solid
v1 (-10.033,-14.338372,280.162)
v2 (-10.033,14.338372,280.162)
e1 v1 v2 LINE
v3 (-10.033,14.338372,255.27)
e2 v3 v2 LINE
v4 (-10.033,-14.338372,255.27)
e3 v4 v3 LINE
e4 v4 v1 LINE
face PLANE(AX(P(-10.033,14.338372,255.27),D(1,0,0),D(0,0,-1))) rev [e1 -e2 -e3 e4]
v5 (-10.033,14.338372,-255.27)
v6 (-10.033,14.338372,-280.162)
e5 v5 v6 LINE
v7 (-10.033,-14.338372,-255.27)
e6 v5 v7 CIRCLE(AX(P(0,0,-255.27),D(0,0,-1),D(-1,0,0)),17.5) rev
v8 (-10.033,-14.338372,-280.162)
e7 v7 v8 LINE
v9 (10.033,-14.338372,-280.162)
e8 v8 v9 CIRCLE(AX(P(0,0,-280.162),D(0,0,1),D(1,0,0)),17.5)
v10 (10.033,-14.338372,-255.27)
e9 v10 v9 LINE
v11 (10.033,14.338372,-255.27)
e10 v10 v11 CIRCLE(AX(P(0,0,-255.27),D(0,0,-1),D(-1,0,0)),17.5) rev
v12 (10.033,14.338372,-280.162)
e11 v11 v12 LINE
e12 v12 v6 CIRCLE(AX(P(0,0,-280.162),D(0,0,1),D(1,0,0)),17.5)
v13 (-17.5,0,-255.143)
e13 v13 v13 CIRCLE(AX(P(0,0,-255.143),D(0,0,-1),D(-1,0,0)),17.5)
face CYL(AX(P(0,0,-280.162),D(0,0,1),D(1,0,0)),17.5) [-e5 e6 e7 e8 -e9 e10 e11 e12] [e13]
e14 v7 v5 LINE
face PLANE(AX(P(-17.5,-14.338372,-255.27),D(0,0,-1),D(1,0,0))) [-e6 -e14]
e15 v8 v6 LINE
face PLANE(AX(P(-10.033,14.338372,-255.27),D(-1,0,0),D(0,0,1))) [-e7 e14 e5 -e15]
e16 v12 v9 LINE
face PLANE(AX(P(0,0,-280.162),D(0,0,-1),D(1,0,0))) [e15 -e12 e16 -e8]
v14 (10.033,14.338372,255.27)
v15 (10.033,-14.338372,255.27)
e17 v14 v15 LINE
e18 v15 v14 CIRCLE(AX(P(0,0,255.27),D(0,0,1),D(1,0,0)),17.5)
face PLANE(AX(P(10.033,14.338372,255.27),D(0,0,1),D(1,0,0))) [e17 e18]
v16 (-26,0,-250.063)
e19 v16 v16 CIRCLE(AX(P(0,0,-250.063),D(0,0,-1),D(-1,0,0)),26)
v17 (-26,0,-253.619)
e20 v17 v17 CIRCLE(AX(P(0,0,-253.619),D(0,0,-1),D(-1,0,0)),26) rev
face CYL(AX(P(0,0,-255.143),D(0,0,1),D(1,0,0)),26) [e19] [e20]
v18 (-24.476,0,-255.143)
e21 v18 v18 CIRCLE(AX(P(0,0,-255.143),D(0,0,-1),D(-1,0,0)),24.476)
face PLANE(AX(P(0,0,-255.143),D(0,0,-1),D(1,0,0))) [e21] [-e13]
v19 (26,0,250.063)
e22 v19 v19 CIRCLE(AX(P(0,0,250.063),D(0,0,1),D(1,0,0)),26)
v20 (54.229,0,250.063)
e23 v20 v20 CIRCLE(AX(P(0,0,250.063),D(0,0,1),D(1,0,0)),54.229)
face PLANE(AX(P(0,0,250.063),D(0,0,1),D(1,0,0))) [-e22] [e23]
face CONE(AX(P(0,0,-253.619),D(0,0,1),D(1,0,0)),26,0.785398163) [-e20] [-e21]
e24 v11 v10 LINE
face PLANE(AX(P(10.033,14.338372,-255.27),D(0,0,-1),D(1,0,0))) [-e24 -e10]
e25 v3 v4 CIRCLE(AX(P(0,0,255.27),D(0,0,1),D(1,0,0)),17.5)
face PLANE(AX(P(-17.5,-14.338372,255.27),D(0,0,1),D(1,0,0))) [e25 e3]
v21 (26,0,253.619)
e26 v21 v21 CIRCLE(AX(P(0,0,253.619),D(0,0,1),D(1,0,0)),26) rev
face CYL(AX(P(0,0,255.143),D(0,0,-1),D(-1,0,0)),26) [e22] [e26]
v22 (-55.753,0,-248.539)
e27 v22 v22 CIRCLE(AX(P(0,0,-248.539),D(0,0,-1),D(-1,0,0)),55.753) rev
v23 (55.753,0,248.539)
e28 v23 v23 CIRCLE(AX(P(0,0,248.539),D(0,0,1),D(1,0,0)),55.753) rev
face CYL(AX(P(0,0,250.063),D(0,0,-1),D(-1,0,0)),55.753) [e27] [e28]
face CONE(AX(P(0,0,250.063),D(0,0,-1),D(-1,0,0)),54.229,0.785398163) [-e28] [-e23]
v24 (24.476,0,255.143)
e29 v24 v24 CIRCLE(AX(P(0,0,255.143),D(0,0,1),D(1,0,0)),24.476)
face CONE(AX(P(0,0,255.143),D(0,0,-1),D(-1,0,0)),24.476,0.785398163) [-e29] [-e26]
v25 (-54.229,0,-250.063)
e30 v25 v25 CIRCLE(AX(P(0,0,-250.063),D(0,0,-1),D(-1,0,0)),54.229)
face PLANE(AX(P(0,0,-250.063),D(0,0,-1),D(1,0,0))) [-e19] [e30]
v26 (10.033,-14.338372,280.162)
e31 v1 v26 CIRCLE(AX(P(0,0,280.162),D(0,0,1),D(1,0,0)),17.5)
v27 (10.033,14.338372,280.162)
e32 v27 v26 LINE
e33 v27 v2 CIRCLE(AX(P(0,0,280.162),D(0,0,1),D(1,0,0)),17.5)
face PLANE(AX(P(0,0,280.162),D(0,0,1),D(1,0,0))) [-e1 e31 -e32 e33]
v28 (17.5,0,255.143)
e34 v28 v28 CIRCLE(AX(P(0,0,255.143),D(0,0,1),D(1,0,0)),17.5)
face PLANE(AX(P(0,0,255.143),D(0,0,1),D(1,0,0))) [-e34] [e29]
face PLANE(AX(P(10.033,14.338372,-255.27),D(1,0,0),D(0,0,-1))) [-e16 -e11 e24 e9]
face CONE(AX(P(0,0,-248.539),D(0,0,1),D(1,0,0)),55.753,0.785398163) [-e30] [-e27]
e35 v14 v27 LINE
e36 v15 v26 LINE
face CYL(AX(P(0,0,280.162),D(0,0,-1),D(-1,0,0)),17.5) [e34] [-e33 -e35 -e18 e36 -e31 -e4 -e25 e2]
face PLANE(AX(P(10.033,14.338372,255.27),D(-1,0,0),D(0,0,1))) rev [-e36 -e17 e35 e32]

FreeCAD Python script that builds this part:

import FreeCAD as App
import Part
import Sketcher
Q = App.Units.Quantity


def edges_at(feature, points):
    """Names of the edges that pass closest to the given points."""
    edges = feature.Shape.Edges
    near = lambda p: min(range(len(edges)), key=lambda i: edges[i].distToShape(Part.Vertex(*p))[0])
    return sorted({f"Edge{near(p) + 1}" for p in points})

doc = App.newDocument("Part")
body = doc.addObject("PartDesign::Body", "Body")

sketch1 = body.newObject("Sketcher::SketchObject", "Sketch")
sketch1.AttachmentSupport = (doc.getObject("XY_Plane"), [""])
sketch1.MapMode = "FlatFace"
sketch1.addGeometry(Part.Circle(App.Vector(0, 0, 0), App.Vector(0, 0, 1), 56), False)
sketch1.addConstraint(Sketcher.Constraint("Coincident", 0, 3, -1, 1))
sketch1.addConstraint(Sketcher.Constraint("Diameter", 0, Q("4.39 in")))
pad1 = body.newObject("PartDesign::Pad", "Pad")
pad1.Profile = sketch1
pad1.Length = Q("9.845 in")

sketch2 = body.newObject("Sketcher::SketchObject", "Sketch001")
sketch2.AttachmentSupport = (doc.getObject("XY_Plane"), [""])
sketch2.MapMode = "FlatFace"
sketch2.AttachmentOffset = App.Placement(App.Vector(0, 0, 9.845 * 25.4), App.Rotation())
sketch2.addGeometry(Part.Circle(App.Vector(0, 0, 0), App.Vector(0, 0, 1), 26), False)
sketch2.addConstraint(Sketcher.Constraint("Coincident", 0, 3, -1, 1))
sketch2.addConstraint(Sketcher.Constraint("Diameter", 0, Q("52 mm")))
pad2 = body.newObject("PartDesign::Pad", "Pad001")
pad2.Profile = sketch2
pad2.Length = Q("0.2 in")

sketch3 = body.newObject("Sketcher::SketchObject", "Sketch002")
sketch3.AttachmentSupport = (doc.getObject("XY_Plane"), [""])
sketch3.MapMode = "FlatFace"
sketch3.AttachmentOffset = App.Placement(App.Vector(0, 0, 10.045 * 25.4), App.Rotation())
sketch3.addGeometry(Part.Circle(App.Vector(0, 0, 0), App.Vector(0, 0, 1), 18), False)
sketch3.addConstraint(Sketcher.Constraint("Coincident", 0, 3, -1, 1))
sketch3.addConstraint(Sketcher.Constraint("Diameter", 0, Q("35 mm")))
pad3 = body.newObject("PartDesign::Pad", "Pad002")
pad3.Profile = sketch3
pad3.Length = Q("0.985 in")

sketch4 = body.newObject("Sketcher::SketchObject", "Sketch003")
sketch4.AttachmentSupport = (doc.getObject("XY_Plane"), [""])
sketch4.MapMode = "FlatFace"
sketch4.AttachmentOffset = App.Placement(App.Vector(0, 0, 11.03 * 25.4), App.Rotation())
sketch4.addGeometry(Part.LineSegment(App.Vector(10, 14, 0), App.Vector(10, -14, 0)), False)
sketch4.addGeometry(Part.LineSegment(App.Vector(10, -14, 0), App.Vector(18, -14, 0)), False)
sketch4.addGeometry(Part.LineSegment(App.Vector(18, -14, 0), App.Vector(18, 14, 0)), False)
sketch4.addGeometry(Part.LineSegment(App.Vector(18, 14, 0), App.Vector(10, 14, 0)), False)
sketch4.addGeometry(Part.LineSegment(App.Vector(-18, 14, 0), App.Vector(-18, -14, 0)), False)
sketch4.addGeometry(Part.LineSegment(App.Vector(-18, -14, 0), App.Vector(-10, -14, 0)), False)
sketch4.addGeometry(Part.LineSegment(App.Vector(-10, -14, 0), App.Vector(-10, 14, 0)), False)
sketch4.addGeometry(Part.LineSegment(App.Vector(-10, 14, 0), App.Vector(-18, 14, 0)), False)
sketch4.addConstraint(Sketcher.Constraint("Coincident", 0, 2, 1, 1))
sketch4.addConstraint(Sketcher.Constraint("Coincident", 1, 2, 2, 1))
sketch4.addConstraint(Sketcher.Constraint("Coincident", 2, 2, 3, 1))
sketch4.addConstraint(Sketcher.Constraint("Coincident", 3, 2, 0, 1))
sketch4.addConstraint(Sketcher.Constraint("Coincident", 4, 2, 5, 1))
sketch4.addConstraint(Sketcher.Constraint("Coincident", 5, 2, 6, 1))
sketch4.addConstraint(Sketcher.Constraint("Coincident", 6, 2, 7, 1))
sketch4.addConstraint(Sketcher.Constraint("Coincident", 7, 2, 4, 1))
sketch4.addConstraint(Sketcher.Constraint("Vertical", 0))
sketch4.addConstraint(Sketcher.Constraint("Horizontal", 1))
sketch4.addConstraint(Sketcher.Constraint("Vertical", 2))
sketch4.addConstraint(Sketcher.Constraint("Horizontal", 3))
sketch4.addConstraint(Sketcher.Constraint("Vertical", 4))
sketch4.addConstraint(Sketcher.Constraint("Horizontal", 5))
sketch4.addConstraint(Sketcher.Constraint("Vertical", 6))
sketch4.addConstraint(Sketcher.Constraint("Horizontal", 7))
sketch4.addConstraint(Sketcher.Constraint("Symmetric", 2, 2, 4, 2, -1, 1))
sketch4.addConstraint(Sketcher.Constraint("Symmetric", 0, 2, 6, 2, -1, 1))
sketch4.addConstraint(Sketcher.Constraint("Horizontal", 1, 2, 4, 2))
sketch4.addConstraint(Sketcher.Constraint("DistanceX", 5, 2, 0, 2, Q("0.79 in")))
sketch4.addConstraint(Sketcher.Constraint("DistanceX", 1, 1, 1, 2, Q("7.467 mm")))
sketch4.addConstraint(Sketcher.Constraint("DistanceY", 0, 2, 0, 1, Q("28.676744 mm")))
pocket1 = body.newObject("PartDesign::Pocket", "Pocket")
pocket1.Profile = sketch4
pocket1.Length = Q("0.98 in")
doc.recompute()

chamfer = body.newObject("PartDesign::Chamfer", "Chamfer")
chamfer.Base = (pocket1, edges_at(pocket1, [(-55.753, 0, 250.063), (-26, 0, 255.143)]))
chamfer.Size = Q("0.06 in")
doc.recompute()

mirrored = body.newObject("PartDesign::Mirrored", "Mirrored")
mirrored.Originals = [pad1, pad2, pad3, pocket1]
mirrored.MirrorPlane = (doc.getObject("XY_Plane"), [""])
body.Tip = mirrored
doc.recompute()

chamfer2 = body.newObject("PartDesign::Chamfer", "Chamfer001")
chamfer2.Base = (mirrored, edges_at(mirrored, [(-55.753, 0, -250.063), (-26, 0, -255.143)]))
chamfer2.Size = Q("0.06 in")

doc.recompute()
